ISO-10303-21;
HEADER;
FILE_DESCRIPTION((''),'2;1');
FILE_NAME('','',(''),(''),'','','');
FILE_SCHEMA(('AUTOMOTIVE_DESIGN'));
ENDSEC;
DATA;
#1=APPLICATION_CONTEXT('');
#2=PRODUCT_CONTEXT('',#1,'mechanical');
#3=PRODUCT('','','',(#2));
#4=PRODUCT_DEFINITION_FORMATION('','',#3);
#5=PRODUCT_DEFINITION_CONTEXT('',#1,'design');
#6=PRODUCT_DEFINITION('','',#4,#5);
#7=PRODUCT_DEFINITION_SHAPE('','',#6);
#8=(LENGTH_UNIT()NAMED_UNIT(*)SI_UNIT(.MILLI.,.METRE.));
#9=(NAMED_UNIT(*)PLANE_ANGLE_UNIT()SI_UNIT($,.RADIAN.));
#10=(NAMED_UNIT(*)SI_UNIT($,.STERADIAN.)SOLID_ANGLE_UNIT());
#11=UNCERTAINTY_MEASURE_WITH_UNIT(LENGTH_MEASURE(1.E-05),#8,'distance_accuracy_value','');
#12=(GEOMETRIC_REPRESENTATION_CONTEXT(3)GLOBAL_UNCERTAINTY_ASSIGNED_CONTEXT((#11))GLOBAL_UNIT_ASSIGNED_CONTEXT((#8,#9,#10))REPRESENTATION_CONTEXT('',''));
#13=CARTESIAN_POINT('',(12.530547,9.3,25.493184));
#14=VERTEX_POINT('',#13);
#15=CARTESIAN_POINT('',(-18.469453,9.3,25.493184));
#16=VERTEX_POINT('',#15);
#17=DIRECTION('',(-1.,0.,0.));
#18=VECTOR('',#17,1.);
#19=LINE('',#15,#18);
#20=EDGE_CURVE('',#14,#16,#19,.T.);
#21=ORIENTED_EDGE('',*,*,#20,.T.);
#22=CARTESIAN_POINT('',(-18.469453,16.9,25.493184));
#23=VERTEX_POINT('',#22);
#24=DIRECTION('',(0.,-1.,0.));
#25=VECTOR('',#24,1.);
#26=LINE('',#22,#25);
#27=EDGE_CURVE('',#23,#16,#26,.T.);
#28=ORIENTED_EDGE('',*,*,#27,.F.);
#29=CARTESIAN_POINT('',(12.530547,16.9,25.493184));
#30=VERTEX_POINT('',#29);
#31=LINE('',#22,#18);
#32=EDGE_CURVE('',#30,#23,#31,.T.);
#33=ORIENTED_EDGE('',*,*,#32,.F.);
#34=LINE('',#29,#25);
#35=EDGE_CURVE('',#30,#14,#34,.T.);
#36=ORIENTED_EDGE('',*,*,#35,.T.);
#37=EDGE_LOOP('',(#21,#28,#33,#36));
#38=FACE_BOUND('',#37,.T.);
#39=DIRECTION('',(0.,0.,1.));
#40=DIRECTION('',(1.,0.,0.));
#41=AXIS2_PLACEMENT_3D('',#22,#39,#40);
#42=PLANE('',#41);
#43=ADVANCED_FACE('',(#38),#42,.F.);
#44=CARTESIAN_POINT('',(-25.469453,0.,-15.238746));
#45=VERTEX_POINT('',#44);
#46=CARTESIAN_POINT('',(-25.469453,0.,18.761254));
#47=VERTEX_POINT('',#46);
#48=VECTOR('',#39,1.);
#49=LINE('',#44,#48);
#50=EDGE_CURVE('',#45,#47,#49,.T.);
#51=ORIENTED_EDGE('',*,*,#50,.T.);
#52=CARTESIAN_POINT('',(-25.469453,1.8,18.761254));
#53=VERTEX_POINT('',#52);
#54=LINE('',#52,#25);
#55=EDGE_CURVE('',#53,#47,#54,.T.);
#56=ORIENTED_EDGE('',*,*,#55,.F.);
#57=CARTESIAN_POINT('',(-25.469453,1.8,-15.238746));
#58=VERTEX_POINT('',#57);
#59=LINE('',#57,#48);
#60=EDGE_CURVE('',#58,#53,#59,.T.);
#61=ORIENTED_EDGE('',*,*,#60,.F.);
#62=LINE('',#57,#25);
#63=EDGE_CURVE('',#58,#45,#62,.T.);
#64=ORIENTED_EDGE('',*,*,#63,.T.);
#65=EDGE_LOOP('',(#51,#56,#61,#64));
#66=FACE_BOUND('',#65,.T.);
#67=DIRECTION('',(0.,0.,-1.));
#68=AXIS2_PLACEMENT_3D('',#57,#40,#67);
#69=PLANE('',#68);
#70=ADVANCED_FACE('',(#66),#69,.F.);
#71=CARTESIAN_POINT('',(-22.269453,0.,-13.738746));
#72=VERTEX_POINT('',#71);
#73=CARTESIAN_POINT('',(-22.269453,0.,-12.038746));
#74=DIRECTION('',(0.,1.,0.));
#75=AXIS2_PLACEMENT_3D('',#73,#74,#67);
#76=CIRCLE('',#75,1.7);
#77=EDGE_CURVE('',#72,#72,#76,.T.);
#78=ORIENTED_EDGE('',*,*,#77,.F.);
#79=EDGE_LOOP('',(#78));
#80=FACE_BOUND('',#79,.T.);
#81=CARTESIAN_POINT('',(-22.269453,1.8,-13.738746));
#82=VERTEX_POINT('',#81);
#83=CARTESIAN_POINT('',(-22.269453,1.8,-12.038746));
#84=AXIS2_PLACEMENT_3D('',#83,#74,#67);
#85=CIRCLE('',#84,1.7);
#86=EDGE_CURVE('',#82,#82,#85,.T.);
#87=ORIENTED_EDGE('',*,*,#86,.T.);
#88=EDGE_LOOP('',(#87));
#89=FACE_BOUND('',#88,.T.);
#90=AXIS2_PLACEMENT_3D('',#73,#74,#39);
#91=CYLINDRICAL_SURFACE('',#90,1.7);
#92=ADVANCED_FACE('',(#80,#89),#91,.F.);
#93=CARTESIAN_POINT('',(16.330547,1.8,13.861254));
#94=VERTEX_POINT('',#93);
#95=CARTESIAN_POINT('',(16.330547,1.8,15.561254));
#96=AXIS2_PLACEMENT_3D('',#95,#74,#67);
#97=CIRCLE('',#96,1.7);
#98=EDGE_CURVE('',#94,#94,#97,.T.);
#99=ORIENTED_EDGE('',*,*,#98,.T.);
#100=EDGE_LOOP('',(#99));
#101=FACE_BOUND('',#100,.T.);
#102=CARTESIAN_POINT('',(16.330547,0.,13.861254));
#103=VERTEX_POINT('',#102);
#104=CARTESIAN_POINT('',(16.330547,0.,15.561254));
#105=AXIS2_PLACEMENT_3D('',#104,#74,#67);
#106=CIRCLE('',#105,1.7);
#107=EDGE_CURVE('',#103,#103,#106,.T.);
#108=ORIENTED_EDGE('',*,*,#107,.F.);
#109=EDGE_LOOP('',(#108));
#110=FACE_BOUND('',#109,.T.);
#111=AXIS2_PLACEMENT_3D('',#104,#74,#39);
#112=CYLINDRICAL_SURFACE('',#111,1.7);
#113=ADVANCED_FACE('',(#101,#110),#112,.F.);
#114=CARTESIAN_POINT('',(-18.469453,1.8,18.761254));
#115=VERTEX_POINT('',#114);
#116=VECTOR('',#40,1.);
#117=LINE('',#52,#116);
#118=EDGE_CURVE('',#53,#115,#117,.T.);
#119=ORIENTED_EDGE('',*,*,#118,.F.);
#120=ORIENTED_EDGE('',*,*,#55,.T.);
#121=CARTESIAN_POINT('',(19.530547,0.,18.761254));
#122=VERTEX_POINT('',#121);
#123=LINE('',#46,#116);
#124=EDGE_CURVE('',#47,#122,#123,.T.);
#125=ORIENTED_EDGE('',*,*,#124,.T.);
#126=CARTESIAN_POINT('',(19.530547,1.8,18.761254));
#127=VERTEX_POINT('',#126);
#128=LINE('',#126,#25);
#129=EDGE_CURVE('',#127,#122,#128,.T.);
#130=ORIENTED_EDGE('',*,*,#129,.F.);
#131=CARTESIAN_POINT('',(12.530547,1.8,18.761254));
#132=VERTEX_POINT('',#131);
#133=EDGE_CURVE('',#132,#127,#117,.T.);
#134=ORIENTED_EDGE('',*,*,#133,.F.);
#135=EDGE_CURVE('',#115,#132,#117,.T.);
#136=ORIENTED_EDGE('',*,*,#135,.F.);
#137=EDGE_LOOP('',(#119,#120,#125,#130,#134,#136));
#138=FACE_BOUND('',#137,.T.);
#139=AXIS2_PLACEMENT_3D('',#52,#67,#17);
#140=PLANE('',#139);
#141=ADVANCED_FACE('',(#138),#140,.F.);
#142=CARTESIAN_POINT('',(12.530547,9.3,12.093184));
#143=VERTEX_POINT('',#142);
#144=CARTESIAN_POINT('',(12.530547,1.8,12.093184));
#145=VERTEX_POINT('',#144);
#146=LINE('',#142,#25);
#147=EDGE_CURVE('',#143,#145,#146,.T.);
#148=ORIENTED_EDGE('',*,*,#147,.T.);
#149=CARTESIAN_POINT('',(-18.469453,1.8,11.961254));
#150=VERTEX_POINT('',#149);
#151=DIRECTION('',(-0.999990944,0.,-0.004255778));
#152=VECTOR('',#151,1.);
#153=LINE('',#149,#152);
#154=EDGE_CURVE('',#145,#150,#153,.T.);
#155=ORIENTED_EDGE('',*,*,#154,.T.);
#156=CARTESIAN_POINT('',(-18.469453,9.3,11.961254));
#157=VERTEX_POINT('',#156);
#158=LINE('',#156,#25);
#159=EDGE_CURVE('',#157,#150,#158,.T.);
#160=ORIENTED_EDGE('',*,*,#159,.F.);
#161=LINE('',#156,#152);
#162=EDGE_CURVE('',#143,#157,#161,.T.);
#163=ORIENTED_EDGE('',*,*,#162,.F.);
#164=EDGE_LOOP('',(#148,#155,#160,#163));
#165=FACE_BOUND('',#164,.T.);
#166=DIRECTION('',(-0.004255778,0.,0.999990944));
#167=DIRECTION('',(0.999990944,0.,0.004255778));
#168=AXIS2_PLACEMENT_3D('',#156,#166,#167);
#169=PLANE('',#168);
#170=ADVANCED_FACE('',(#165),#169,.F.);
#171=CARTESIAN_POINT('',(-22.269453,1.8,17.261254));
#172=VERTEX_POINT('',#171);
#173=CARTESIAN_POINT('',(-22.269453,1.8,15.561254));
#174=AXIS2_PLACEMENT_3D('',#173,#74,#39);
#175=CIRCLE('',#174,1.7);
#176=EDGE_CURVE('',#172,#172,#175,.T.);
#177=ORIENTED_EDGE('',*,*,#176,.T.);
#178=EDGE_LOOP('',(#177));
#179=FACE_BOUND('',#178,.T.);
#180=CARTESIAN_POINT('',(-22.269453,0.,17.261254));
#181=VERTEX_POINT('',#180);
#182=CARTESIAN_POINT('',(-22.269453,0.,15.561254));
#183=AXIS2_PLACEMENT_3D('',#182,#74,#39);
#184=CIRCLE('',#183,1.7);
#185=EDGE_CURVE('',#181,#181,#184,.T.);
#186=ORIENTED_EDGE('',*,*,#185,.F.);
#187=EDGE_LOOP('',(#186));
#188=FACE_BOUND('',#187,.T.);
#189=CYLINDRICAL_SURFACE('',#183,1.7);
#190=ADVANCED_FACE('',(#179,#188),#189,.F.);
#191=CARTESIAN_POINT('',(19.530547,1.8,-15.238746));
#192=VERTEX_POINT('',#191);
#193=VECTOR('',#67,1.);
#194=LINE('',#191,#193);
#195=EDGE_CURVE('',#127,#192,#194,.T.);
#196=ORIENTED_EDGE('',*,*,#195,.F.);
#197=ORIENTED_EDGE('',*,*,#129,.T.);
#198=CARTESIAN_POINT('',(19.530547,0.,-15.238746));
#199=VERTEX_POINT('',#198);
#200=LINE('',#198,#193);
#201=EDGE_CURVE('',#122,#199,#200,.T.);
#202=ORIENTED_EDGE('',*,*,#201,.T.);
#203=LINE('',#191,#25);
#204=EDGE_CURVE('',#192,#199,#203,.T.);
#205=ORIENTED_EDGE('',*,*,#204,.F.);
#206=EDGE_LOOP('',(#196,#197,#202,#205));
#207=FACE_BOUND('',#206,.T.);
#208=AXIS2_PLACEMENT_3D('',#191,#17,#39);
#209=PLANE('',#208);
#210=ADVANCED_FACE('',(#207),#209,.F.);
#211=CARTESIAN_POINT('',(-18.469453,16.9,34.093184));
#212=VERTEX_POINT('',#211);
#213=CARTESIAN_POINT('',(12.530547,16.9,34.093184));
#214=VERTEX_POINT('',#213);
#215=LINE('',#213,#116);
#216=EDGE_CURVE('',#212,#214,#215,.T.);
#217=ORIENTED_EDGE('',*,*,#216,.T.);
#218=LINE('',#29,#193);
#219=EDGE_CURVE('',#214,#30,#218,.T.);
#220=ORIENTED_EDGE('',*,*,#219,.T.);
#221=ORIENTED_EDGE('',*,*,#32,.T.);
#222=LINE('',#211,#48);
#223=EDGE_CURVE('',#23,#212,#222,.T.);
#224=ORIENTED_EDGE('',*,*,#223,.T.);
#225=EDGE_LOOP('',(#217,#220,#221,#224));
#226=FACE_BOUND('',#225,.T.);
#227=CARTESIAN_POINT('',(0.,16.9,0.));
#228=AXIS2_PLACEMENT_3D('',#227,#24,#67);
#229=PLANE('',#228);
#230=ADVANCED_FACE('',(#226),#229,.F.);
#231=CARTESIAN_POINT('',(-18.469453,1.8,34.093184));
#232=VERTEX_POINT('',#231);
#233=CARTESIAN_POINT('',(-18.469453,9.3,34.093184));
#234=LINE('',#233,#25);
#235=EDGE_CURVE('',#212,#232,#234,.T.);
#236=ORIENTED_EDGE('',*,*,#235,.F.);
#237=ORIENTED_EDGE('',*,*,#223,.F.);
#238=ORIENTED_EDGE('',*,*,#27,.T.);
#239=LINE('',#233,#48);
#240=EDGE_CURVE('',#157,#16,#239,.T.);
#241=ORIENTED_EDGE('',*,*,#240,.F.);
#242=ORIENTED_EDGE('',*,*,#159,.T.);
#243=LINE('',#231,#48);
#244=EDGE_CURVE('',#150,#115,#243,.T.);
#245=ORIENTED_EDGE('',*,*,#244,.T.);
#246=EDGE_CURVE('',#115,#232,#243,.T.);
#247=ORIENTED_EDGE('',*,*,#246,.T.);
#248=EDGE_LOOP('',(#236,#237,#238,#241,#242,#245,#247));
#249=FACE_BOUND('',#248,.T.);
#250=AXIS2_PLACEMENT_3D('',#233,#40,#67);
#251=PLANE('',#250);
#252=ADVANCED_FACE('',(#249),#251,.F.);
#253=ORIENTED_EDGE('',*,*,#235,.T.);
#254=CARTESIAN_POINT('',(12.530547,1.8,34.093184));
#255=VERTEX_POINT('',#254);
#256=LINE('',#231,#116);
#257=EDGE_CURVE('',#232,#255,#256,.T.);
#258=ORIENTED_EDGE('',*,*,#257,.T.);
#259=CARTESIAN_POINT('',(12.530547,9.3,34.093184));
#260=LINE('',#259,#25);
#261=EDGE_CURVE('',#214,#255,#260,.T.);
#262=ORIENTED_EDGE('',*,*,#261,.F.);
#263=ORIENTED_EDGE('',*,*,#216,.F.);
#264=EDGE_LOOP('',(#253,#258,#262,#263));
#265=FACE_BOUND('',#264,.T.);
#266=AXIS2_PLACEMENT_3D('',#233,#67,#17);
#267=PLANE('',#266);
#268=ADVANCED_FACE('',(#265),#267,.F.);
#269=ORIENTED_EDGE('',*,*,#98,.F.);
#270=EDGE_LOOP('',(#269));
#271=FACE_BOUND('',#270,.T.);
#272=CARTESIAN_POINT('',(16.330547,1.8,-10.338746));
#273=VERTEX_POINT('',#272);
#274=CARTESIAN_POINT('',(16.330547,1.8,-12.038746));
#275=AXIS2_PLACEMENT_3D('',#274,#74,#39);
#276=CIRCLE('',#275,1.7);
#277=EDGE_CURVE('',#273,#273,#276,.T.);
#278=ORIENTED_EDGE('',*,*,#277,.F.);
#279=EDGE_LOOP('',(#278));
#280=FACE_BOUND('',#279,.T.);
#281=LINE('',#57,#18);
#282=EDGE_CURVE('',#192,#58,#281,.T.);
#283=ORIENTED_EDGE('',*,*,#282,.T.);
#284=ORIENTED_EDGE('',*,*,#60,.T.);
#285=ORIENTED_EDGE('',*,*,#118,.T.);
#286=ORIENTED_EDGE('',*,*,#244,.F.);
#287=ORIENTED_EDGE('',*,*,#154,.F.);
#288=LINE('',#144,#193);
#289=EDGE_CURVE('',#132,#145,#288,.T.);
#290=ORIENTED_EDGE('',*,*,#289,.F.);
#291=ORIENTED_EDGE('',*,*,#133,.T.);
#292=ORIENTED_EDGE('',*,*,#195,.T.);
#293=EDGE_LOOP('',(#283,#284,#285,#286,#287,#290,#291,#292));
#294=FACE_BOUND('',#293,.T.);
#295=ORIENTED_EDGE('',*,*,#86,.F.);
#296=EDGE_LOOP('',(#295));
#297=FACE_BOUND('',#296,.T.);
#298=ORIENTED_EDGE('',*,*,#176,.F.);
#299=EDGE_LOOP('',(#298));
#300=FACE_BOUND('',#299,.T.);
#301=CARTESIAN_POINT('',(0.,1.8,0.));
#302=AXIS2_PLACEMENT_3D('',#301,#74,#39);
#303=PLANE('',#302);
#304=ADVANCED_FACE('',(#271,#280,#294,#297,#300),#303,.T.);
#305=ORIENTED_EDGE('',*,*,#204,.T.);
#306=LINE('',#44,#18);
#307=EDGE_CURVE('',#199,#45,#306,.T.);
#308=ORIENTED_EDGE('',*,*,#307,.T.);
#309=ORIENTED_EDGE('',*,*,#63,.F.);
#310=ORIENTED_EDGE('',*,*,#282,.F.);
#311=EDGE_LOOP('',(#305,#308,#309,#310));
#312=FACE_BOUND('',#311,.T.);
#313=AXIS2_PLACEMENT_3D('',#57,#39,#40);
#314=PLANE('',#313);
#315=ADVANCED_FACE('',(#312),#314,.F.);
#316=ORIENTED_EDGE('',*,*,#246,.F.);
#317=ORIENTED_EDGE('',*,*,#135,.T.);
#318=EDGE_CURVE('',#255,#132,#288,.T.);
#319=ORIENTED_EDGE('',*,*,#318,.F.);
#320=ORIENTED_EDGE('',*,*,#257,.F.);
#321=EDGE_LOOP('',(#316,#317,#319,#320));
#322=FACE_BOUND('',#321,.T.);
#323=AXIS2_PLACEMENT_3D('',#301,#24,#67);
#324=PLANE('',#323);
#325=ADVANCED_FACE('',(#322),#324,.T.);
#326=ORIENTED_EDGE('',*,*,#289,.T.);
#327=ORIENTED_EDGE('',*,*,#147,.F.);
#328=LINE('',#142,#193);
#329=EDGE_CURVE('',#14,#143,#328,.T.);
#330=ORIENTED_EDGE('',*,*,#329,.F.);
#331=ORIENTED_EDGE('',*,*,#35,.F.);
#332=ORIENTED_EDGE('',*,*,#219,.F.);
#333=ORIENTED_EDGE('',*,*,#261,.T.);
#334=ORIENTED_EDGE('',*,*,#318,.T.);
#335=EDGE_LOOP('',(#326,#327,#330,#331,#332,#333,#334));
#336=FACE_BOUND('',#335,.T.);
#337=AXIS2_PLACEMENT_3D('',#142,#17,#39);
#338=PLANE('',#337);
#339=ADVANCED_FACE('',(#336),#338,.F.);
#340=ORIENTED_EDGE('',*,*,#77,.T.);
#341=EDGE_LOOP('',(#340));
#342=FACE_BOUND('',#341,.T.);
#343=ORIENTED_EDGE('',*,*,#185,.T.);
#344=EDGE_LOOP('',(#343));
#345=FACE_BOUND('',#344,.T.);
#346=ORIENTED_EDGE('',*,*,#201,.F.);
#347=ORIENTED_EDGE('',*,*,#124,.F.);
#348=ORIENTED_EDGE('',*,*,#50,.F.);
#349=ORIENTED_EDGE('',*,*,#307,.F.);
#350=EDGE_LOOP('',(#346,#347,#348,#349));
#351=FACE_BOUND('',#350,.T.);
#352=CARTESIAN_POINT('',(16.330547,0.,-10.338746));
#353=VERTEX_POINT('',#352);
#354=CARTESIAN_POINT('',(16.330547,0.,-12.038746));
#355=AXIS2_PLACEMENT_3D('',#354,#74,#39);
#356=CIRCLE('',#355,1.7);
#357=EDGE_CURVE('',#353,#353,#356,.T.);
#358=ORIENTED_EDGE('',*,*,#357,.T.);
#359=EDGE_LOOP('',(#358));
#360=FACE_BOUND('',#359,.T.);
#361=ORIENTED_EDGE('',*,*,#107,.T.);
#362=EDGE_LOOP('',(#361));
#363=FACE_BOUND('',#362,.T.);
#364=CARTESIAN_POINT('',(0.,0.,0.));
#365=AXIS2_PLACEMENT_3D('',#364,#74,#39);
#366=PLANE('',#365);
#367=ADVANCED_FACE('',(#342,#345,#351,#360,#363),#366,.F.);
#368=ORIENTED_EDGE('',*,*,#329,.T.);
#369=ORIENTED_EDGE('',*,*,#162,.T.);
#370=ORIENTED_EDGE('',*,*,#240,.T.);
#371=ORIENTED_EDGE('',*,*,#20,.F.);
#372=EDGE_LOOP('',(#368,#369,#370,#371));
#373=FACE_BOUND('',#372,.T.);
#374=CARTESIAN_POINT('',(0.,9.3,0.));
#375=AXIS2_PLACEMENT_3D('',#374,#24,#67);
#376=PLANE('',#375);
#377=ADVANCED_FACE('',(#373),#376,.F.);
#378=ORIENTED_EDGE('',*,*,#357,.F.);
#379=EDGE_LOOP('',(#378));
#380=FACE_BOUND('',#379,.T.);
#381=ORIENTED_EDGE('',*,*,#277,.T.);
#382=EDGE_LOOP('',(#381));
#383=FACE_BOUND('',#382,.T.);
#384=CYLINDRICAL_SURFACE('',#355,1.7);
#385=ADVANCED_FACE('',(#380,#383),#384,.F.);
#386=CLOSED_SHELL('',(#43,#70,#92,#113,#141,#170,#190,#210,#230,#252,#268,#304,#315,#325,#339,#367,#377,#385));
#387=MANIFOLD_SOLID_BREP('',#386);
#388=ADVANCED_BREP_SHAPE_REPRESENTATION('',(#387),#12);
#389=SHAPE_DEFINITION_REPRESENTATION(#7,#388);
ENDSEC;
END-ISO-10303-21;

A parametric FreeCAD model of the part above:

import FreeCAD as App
import Part
import Sketcher

V = App.Vector


def add_polygon(sketch, points):
    """Adds a closed chain of lines whose ends are joined by coincident constraints."""
    first, n = sketch.GeometryCount, len(points)
    for a, b in zip(points, points[1:] + points[:1]):
        sketch.addGeometry(Part.LineSegment(App.Vector(*a, 0), App.Vector(*b, 0)), False)
    for i in range(n):
        sketch.addConstraint(Sketcher.Constraint("Coincident", first + i, 2, first + (i + 1) % n, 1))

doc = App.newDocument("Part")
body = doc.addObject("PartDesign::Body", "Body")

sketch1 = doc.addObject("Sketcher::SketchObject", "Sketch")
body.addObject(sketch1)
sketch1.AttachmentSupport = (doc.XZ_Plane, [""])
sketch1.MapMode = "FlatFace"
add_polygon(sketch1, [(-25, -15), (-25, 19), (20, 19), (20, -15)])
sketch1.addConstraint([
    Sketcher.Constraint("Vertical", 0),
    Sketcher.Constraint("Horizontal", 1),
    Sketcher.Constraint("Vertical", 2),
    Sketcher.Constraint("Horizontal", 3),
    Sketcher.Constraint("DistanceX", 1, 1, 1, 2, 45.0),
    Sketcher.Constraint("DistanceY", 0, 1, 0, 2, 34.0),
    Sketcher.Constraint("DistanceX", 0, 2, -1, 1, 25.469453),
    Sketcher.Constraint("DistanceY", -1, 1, 0, 2, 18.761254),
])
pad1 = doc.addObject("PartDesign::Pad", "Pad")
body.addObject(pad1)
pad1.Profile = sketch1
pad1.Length = 1.8
pad1.Reversed = True

sketch2 = doc.addObject("Sketcher::SketchObject", "Sketch001")
body.addObject(sketch2)
sketch2.AttachmentSupport = (doc.XZ_Plane, [""])
sketch2.MapMode = "FlatFace"
sketch2.AttachmentOffset = App.Placement(V(0, 0, -1.8), App.Rotation())
sketch2.addGeometry([
    Part.Circle(V(-22.3, 15.6, 0), V(0, 0, 1), 1.7),
    Part.Circle(V(16.3, 15.6, 0), V(0, 0, 1), 1.7),
    Part.Circle(V(16.3, -12, 0), V(0, 0, 1), 1.7),
    Part.Circle(V(-22.3, -12, 0), V(0, 0, 1), 1.7),
], False)
sketch2.addConstraint([
    Sketcher.Constraint("Equal", 0, 1),
    Sketcher.Constraint("Equal", 1, 2),
    Sketcher.Constraint("Equal", 2, 3),
    Sketcher.Constraint("Horizontal", 0, 3, 1, 3),
    Sketcher.Constraint("Horizontal", 2, 3, 3, 3),
    Sketcher.Constraint("Vertical", 1, 3, 2, 3),
    Sketcher.Constraint("Vertical", 0, 3, 3, 3),
    Sketcher.Constraint("Diameter", 0, 3.4),
    Sketcher.Constraint("DistanceX", 0, 3, 1, 3, 38.6),
    Sketcher.Constraint("DistanceY", 2, 3, 1, 3, 27.6),
    Sketcher.Constraint("DistanceX", 0, 3, -1, 1, 22.269453),
    Sketcher.Constraint("DistanceY", -1, 1, 0, 3, 15.561254),
])
pocket1 = doc.addObject("PartDesign::Pocket", "Pocket")
body.addObject(pocket1)
pocket1.Profile = sketch2
pocket1.Length = 1.8
pocket1.Reversed = True

sketch3 = doc.addObject("Sketcher::SketchObject", "Sketch002")
body.addObject(sketch3)
sketch3.AttachmentSupport = (doc.XZ_Plane, [""])
sketch3.MapMode = "FlatFace"
sketch3.AttachmentOffset = App.Placement(V(0, 0, -1.8), App.Rotation())
add_polygon(sketch3, [(-18, 12), (-18, 34), (13, 34), (13, 12)])
sketch3.addConstraint([
    Sketcher.Constraint("Vertical", 0),
    Sketcher.Constraint("Horizontal", 1),
    Sketcher.Constraint("Vertical", 2),
    Sketcher.Constraint("DistanceX", 1, 1, 1, 2, 31.0),
    Sketcher.Constraint("DistanceY", 2, 2, 2, 1, 22.0),
    Sketcher.Constraint("DistanceY", 0, 1, 0, 2, 22.13193),
    Sketcher.Constraint("DistanceX", 0, 2, -1, 1, 18.469453),
    Sketcher.Constraint("DistanceY", -1, 1, 0, 2, 34.093184),
])
pad2 = doc.addObject("PartDesign::Pad", "Pad001")
body.addObject(pad2)
pad2.Profile = sketch3
pad2.Length = 7.5
pad2.Reversed = True

sketch4 = doc.addObject("Sketcher::SketchObject", "Sketch003")
body.addObject(sketch4)
sketch4.AttachmentSupport = (doc.XZ_Plane, [""])
sketch4.MapMode = "FlatFace"
sketch4.AttachmentOffset = App.Placement(V(0, 0, -9.3), App.Rotation())
add_polygon(sketch4, [(-18, 25), (-18, 34), (13, 34), (13, 25)])
sketch4.addConstraint([
    Sketcher.Constraint("Vertical", 0),
    Sketcher.Constraint("Horizontal", 1),
    Sketcher.Constraint("Vertical", 2),
    Sketcher.Constraint("Horizontal", 3),
    Sketcher.Constraint("DistanceX", 1, 1, 1, 2, 31.0),
    Sketcher.Constraint("DistanceY", 0, 1, 0, 2, 8.6),
    Sketcher.Constraint("DistanceX", 0, 2, -1, 1, 18.469453),
    Sketcher.Constraint("DistanceY", -1, 1, 0, 2, 34.093184),
])
pad3 = doc.addObject("PartDesign::Pad", "Pad002")
body.addObject(pad3)
pad3.Profile = sketch4
pad3.Length = 7.6
pad3.Reversed = True

doc.recompute()
